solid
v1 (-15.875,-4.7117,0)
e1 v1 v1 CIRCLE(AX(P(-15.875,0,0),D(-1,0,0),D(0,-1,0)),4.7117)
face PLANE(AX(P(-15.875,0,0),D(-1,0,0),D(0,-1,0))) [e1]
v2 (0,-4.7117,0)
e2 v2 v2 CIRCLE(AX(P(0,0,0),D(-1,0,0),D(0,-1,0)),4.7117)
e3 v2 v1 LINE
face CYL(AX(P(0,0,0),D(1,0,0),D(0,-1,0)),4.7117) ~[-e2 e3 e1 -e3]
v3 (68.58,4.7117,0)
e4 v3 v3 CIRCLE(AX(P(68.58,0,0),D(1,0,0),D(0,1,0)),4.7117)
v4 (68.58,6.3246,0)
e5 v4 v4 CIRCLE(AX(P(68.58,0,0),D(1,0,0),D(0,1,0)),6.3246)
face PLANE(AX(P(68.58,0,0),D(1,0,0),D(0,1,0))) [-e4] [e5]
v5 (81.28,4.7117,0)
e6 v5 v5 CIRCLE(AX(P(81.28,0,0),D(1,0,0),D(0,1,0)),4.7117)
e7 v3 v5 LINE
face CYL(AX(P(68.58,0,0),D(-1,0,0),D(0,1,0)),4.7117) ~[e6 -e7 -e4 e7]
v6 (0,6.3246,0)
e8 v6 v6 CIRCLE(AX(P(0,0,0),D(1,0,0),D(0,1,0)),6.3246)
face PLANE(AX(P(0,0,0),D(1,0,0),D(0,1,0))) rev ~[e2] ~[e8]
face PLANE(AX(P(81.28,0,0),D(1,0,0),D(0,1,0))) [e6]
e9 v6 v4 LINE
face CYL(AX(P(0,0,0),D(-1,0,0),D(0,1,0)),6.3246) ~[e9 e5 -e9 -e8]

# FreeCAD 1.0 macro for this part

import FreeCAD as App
import Part
import Sketcher
Q = App.Units.Quantity

doc = App.newDocument("Part")
body = doc.addObject("PartDesign::Body", "Body")

sketch1 = doc.addObject("Sketcher::SketchObject", "Sketch")
body.addObject(sketch1)
sketch1.AttachmentSupport = (doc.YZ_Plane, [""])
sketch1.MapMode = "FlatFace"
sketch1.addGeometry(Part.Circle(App.Vector(0, 0, 0), App.Vector(0, 0, 1), 6.3246), False)
sketch1.addConstraint([
    Sketcher.Constraint("Coincident", 0, 3, -1, 1),
    Sketcher.Constraint("Diameter", 0, Q("0.498 in")),
])
pad1 = doc.addObject("PartDesign::Pad", "Pad")
body.addObject(pad1)
pad1.Profile = sketch1
pad1.Length = Q("2.7 in")

sketch2 = doc.addObject("Sketcher::SketchObject", "Sketch001")
body.addObject(sketch2)
sketch2.AttachmentSupport = (doc.YZ_Plane, [""])
sketch2.MapMode = "FlatFace"
sketch2.AttachmentOffset = App.Placement(App.Vector(0, 0, 2.7 * 25.4), App.Rotation())
sketch2.addGeometry(Part.Circle(App.Vector(0, 0, 0), App.Vector(0, 0, 1), 4.7117), False)
sketch2.addConstraint([
    Sketcher.Constraint("Coincident", 0, 3, -1, 1),
    Sketcher.Constraint("Diameter", 0, Q("0.371 in")),
])
pad2 = doc.addObject("PartDesign::Pad", "Pad001")
body.addObject(pad2)
pad2.Profile = sketch2
pad2.Length = Q("0.5 in")

sketch3 = doc.addObject("Sketcher::SketchObject", "Sketch002")
body.addObject(sketch3)
sketch3.AttachmentSupport = (doc.YZ_Plane, [""])
sketch3.MapMode = "FlatFace"
sketch3.addGeometry(Part.Circle(App.Vector(0, 0, 0), App.Vector(0, 0, 1), 4.7117), False)
sketch3.addConstraint([
    Sketcher.Constraint("Coincident", 0, 3, -1, 1),
    Sketcher.Constraint("Diameter", 0, Q("0.371 in")),
])
pad3 = doc.addObject("PartDesign::Pad", "Pad002")
body.addObject(pad3)
pad3.Profile = sketch3
pad3.Length = Q("0.625 in")
pad3.Reversed = True

doc.recompute()
